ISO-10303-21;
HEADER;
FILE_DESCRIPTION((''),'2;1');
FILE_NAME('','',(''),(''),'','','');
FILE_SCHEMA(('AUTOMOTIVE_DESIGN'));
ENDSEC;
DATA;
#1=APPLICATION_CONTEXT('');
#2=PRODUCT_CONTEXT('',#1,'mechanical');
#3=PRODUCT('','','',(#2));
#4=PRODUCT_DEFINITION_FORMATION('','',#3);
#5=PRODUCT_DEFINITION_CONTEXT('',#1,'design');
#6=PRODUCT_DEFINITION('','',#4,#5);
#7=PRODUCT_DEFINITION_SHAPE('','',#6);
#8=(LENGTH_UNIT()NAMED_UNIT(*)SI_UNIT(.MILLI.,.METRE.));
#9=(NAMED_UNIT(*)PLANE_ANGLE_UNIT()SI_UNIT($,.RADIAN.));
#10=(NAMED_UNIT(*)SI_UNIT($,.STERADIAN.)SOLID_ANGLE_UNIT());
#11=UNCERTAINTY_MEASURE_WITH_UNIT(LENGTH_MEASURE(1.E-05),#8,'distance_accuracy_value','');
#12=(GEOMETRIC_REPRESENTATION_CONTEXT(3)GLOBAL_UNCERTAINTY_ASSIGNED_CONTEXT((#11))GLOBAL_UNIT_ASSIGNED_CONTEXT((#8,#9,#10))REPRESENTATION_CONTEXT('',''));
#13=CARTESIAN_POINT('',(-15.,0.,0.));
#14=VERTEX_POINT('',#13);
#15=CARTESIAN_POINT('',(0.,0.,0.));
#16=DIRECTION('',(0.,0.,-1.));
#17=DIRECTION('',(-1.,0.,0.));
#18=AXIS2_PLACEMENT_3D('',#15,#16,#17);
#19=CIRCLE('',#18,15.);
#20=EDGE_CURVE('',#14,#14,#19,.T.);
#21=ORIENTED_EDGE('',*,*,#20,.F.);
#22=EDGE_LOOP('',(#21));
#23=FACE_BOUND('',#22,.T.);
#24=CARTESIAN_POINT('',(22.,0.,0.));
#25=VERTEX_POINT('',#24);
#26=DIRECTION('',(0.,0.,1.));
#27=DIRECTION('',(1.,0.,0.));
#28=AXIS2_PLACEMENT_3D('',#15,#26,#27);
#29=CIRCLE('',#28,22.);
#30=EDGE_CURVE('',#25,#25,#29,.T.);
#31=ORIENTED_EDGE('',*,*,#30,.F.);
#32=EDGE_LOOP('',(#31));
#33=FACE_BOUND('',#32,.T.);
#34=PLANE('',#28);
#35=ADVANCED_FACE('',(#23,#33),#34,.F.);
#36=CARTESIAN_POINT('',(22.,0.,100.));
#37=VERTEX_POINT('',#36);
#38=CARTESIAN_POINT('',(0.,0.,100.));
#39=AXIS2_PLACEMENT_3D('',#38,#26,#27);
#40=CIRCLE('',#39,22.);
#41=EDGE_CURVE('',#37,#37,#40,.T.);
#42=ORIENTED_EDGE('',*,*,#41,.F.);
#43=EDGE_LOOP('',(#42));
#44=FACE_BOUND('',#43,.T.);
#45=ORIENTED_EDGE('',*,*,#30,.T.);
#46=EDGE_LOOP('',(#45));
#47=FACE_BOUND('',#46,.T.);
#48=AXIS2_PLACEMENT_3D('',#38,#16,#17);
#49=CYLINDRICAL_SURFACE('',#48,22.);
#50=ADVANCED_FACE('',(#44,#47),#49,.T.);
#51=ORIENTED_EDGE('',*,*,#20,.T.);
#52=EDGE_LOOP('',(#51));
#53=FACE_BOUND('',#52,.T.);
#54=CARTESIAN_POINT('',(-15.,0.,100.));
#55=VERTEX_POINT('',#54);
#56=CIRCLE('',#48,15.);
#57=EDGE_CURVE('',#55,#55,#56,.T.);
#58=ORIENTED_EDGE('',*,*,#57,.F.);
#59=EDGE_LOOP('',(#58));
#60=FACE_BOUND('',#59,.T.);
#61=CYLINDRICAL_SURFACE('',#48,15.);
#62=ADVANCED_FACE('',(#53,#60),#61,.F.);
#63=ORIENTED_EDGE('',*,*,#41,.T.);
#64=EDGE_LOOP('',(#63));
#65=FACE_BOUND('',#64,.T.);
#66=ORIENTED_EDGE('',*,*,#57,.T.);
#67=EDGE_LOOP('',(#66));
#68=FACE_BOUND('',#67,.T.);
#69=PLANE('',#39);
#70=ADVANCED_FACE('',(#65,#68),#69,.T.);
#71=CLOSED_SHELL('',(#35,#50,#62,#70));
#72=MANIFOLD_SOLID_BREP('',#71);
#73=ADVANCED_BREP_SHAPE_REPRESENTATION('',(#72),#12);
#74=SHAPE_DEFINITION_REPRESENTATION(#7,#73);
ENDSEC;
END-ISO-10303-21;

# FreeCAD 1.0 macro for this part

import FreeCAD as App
import Part
import Sketcher
Q = App.Units.Quantity

doc = App.newDocument("Part")
body = doc.addObject("PartDesign::Body", "Body")

# Sketch on XY plane
sketch1 = body.newObject("Sketcher::SketchObject", "Sketch")
sketch1.AttachmentSupport = (doc.getObject("XY_Plane"), [""])
sketch1.MapMode = "FlatFace"
sketch1.addGeometry(Part.Circle(App.Vector(0, 0, 0), App.Vector(0, 0, 1), 22), False)
sketch1.addConstraint(Sketcher.Constraint("Coincident", 0, 3, -1, 1))
sketch1.addConstraint(Sketcher.Constraint("Diameter", 0, Q("44 mm")))
pad1 = body.newObject("PartDesign::Pad", "Pad")
pad1.Profile = sketch1
pad1.Length = 100

# Sketch on XY plane
sketch2 = body.newObject("Sketcher::SketchObject", "Sketch001")
sketch2.AttachmentSupport = (doc.getObject("XY_Plane"), [""])
sketch2.MapMode = "FlatFace"
sketch2.addGeometry(Part.Circle(App.Vector(0, 0, 0), App.Vector(0, 0, 1), 15), False)
sketch2.addConstraint(Sketcher.Constraint("Coincident", 0, 3, -1, 1))
sketch2.addConstraint(Sketcher.Constraint("Diameter", 0, Q("30 mm")))
pocket1 = body.newObject("PartDesign::Pocket", "Pocket")
pocket1.Profile = sketch2
pocket1.Length = 100
pocket1.Reversed = True

doc.recompute()
